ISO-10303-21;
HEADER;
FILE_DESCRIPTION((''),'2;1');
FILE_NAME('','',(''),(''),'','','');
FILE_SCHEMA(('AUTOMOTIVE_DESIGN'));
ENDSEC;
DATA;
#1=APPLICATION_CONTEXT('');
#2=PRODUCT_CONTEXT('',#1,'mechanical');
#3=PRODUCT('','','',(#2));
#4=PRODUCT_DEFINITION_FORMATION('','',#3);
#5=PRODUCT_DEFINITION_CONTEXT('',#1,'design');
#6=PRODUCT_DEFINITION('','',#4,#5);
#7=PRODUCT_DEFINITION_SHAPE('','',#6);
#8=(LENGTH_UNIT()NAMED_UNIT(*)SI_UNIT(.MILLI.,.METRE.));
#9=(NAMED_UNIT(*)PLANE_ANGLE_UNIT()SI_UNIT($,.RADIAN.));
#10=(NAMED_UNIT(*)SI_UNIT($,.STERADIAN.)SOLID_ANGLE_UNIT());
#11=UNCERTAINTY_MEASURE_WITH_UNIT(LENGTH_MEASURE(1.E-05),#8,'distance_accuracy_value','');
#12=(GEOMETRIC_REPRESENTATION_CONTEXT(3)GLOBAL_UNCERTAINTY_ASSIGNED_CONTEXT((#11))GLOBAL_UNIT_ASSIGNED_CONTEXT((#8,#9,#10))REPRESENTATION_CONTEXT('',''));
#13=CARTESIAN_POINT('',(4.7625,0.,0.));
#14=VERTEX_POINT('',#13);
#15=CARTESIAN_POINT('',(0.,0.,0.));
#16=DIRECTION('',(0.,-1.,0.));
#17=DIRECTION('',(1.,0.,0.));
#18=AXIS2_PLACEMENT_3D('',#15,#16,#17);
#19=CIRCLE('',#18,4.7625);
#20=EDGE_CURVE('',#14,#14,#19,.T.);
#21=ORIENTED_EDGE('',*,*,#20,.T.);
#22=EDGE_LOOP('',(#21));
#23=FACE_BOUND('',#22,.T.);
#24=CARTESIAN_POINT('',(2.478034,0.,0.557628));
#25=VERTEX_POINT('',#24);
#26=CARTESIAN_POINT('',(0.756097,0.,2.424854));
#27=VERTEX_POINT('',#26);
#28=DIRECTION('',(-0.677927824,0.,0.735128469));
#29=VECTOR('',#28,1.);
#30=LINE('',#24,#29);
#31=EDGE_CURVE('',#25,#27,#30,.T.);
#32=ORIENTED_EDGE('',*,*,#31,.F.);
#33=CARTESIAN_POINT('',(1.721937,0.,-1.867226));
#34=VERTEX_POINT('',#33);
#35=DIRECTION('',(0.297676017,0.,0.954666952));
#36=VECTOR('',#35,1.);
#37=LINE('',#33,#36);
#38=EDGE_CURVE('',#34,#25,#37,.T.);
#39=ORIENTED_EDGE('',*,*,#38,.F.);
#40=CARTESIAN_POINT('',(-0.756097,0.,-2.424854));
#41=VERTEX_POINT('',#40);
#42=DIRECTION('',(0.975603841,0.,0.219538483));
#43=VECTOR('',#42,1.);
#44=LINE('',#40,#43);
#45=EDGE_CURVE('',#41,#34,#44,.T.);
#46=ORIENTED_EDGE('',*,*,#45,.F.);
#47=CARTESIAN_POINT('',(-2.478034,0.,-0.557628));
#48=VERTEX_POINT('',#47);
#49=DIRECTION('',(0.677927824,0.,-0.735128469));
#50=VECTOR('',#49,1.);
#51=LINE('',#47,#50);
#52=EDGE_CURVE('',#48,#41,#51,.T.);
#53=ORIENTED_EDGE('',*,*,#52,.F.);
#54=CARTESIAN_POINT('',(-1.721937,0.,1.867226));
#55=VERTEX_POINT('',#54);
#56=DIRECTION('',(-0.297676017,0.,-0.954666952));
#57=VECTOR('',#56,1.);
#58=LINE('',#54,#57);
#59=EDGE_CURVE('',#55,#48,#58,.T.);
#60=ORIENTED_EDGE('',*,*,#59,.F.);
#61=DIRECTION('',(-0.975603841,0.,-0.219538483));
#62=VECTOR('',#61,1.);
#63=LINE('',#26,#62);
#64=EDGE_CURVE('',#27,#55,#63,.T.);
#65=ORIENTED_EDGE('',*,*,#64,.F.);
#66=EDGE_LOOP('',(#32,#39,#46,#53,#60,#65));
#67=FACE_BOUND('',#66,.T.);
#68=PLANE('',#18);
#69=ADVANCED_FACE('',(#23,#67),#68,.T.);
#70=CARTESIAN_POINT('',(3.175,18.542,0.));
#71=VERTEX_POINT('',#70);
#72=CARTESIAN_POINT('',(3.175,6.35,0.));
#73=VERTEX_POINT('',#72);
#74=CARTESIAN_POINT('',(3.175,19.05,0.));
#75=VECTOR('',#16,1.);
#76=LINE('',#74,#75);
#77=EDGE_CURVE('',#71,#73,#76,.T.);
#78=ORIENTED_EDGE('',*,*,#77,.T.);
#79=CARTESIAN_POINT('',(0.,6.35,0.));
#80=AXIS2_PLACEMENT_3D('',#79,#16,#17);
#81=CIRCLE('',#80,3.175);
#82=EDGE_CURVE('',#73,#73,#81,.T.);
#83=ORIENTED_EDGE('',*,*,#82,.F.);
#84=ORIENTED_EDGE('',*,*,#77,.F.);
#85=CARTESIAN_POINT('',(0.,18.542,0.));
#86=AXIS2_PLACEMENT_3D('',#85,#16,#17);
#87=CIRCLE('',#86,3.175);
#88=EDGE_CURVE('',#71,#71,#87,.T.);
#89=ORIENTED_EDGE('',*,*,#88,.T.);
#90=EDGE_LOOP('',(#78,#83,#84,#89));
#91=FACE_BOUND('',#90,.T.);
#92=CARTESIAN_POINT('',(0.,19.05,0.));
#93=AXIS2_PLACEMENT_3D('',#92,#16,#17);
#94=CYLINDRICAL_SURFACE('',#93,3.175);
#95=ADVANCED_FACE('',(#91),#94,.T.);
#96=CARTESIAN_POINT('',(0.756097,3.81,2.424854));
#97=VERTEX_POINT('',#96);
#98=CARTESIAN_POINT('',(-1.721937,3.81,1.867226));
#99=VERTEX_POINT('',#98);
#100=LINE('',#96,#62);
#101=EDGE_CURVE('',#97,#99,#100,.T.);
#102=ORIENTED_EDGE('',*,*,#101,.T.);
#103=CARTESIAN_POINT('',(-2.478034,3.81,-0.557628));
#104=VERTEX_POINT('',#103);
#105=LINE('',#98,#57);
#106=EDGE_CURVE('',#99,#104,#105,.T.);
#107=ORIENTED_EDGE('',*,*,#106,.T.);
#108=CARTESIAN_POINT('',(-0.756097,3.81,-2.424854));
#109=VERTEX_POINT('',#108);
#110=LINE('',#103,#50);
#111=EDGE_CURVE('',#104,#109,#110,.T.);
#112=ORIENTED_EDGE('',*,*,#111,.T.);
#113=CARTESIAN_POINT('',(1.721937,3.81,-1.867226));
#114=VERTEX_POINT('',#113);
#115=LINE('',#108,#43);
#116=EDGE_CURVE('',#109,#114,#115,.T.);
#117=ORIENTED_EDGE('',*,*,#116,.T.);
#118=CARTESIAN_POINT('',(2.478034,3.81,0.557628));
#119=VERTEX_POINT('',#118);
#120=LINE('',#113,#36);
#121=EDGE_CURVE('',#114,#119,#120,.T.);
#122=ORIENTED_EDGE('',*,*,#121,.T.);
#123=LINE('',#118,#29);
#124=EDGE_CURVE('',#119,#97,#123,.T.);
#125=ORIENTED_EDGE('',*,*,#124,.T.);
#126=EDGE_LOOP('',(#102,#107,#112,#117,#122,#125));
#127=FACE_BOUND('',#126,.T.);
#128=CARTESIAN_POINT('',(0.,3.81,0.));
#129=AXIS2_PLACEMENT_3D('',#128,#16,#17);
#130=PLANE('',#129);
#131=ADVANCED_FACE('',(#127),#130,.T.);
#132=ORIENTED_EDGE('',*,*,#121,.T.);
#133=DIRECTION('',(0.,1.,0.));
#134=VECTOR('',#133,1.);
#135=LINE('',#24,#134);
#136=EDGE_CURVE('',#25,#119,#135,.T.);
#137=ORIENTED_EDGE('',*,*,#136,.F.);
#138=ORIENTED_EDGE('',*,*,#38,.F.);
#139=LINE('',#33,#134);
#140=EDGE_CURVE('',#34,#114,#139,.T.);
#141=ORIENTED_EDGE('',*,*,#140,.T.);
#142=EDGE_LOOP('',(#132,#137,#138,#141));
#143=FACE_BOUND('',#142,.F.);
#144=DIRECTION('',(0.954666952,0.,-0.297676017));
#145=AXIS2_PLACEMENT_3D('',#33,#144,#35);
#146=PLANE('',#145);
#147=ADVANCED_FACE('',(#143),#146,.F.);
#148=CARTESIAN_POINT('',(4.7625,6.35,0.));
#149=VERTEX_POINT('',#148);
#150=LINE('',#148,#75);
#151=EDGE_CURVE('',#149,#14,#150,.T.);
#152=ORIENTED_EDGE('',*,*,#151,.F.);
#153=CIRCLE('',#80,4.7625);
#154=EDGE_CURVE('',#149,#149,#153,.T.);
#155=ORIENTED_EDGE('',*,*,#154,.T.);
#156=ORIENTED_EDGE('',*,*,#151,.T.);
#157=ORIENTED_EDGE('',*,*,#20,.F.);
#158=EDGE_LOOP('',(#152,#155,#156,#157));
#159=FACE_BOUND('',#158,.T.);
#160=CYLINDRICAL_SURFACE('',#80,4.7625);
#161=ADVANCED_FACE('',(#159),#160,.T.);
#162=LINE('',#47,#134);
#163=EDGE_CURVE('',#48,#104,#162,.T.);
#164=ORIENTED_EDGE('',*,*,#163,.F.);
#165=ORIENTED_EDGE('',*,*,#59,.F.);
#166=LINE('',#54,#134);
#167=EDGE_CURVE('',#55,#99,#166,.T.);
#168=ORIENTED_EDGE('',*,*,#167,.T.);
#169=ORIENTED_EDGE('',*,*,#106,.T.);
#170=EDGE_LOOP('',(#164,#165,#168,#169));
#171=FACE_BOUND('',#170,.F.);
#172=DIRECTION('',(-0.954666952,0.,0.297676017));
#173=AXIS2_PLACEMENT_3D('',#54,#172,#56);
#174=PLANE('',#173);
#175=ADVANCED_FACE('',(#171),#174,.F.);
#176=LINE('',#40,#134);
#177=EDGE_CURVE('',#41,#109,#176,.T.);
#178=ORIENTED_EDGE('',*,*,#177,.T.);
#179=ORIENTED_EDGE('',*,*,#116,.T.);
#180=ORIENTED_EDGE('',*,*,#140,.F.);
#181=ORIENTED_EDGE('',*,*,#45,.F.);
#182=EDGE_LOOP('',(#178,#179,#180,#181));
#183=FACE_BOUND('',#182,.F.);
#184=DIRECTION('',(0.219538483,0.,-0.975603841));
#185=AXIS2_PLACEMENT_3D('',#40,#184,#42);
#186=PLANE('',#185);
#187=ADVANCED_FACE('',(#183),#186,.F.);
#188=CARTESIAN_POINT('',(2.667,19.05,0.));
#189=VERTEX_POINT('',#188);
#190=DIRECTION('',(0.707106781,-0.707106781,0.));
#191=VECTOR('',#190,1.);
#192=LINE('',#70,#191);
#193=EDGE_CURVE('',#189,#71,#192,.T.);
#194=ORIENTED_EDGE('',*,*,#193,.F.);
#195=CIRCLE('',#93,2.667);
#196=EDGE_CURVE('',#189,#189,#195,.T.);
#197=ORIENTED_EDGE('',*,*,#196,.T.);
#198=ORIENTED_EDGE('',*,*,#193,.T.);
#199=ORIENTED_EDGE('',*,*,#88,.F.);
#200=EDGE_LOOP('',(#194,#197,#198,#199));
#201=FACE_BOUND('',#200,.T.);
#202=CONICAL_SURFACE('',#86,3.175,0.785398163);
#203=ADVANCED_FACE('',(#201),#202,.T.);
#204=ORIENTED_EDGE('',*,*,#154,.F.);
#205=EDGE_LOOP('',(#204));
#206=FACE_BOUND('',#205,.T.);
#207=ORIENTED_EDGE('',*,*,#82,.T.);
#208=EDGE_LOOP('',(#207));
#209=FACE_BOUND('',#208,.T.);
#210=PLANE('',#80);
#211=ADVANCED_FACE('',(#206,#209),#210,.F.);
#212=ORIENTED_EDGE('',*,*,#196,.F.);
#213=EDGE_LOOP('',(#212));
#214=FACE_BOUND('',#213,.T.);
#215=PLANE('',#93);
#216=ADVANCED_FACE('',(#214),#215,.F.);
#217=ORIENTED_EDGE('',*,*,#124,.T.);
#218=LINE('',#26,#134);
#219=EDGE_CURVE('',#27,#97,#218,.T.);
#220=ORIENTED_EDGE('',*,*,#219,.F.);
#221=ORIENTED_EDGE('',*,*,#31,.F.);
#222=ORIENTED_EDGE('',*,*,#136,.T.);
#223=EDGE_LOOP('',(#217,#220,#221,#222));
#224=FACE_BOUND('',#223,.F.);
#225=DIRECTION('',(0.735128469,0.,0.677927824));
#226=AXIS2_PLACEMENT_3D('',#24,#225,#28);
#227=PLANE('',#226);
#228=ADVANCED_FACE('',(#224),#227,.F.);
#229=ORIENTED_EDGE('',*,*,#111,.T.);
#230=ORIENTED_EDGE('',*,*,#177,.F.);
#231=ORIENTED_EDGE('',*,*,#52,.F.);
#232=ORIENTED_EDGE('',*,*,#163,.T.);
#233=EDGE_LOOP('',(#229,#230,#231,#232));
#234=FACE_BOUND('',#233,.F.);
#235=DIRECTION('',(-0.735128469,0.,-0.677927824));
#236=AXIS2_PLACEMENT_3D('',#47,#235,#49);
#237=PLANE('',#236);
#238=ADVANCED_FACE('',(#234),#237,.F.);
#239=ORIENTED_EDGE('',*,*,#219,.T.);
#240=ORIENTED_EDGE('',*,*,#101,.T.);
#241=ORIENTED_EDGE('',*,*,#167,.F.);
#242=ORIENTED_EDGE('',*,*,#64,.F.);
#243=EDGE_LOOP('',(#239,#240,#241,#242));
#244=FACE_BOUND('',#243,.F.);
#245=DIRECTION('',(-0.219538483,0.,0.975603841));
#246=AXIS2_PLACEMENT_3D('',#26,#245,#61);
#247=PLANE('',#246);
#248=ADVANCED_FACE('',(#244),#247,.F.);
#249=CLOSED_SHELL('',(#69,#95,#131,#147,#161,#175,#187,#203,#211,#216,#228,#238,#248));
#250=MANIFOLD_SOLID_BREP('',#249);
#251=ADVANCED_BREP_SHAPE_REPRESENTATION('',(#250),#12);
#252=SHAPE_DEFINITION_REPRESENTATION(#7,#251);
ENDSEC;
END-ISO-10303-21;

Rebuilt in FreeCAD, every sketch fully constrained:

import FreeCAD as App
import Part
import Sketcher
Q = App.Units.Quantity


def edges_at(feature, points):
    """Names of the edges that pass closest to the given points."""
    edges = feature.Shape.Edges
    near = lambda p: min(range(len(edges)), key=lambda i: edges[i].distToShape(Part.Vertex(*p))[0])
    return sorted({f"Edge{near(p) + 1}" for p in points})

doc = App.newDocument("Part")
body = doc.addObject("PartDesign::Body", "Body")

sketch1 = body.newObject("Sketcher::SketchObject", "Sketch")
sketch1.AttachmentSupport = (doc.getObject("XY_Plane"), [""])
sketch1.MapMode = "FlatFace"
sketch1.addGeometry([
    Part.LineSegment(App.Vector(0, 19.1, 0), App.Vector(0, 0, 0)),
    Part.LineSegment(App.Vector(0, 0, 0), App.Vector(4.8, 0, 0)),
    Part.LineSegment(App.Vector(4.8, 0, 0), App.Vector(4.8, 6.3, 0)),
    Part.LineSegment(App.Vector(4.8, 6.3, 0), App.Vector(3.2, 6.3, 0)),
    Part.LineSegment(App.Vector(3.2, 6.3, 0), App.Vector(3.2, 19.1, 0)),
    Part.LineSegment(App.Vector(3.2, 19.1, 0), App.Vector(0, 19.1, 0)),
], False)
sketch1.addConstraint([
    Sketcher.Constraint("Coincident", 0, 2, 1, 1),
    Sketcher.Constraint("Coincident", 1, 2, 2, 1),
    Sketcher.Constraint("Coincident", 2, 2, 3, 1),
    Sketcher.Constraint("Coincident", 3, 2, 4, 1),
    Sketcher.Constraint("Coincident", 4, 2, 5, 1),
    Sketcher.Constraint("Coincident", 5, 2, 0, 1),
    Sketcher.Constraint("Vertical", 0),
    Sketcher.Constraint("Horizontal", 1),
    Sketcher.Constraint("Vertical", 2),
    Sketcher.Constraint("Horizontal", 3),
    Sketcher.Constraint("Vertical", 4),
    Sketcher.Constraint("Horizontal", 5),
    Sketcher.Constraint("Coincident", 0, 2, -1, 1),
    Sketcher.Constraint("DistanceY", 4, 1, 4, 2, Q("0.5 in")),
    Sketcher.Constraint("DistanceY", 0, 2, 0, 1, Q("0.75 in")),
    Sketcher.Constraint("DistanceX", 1, 1, 1, 2, Q("0.1875 in")),
    Sketcher.Constraint("DistanceX", 3, 2, 3, 1, Q("0.0625 in")),
])
revolution = body.newObject("PartDesign::Revolution", "Revolution")
revolution.Profile = sketch1
revolution.ReferenceAxis = (sketch1, ["V_Axis"])
revolution.Angle = 360
doc.recompute()

chamfer = body.newObject("PartDesign::Chamfer", "Chamfer")
chamfer.Base = (revolution, edges_at(revolution, [(-3.175, 19.05, 0)]))
chamfer.Size = Q("0.02 in")

sketch2 = body.newObject("Sketcher::SketchObject", "Sketch001")
sketch2.AttachmentSupport = (doc.getObject("XZ_Plane"), [""])
sketch2.MapMode = "FlatFace"
sketch2.addGeometry([
    Part.LineSegment(App.Vector(1.7, -1.9, 0), App.Vector(2.5, 0.6, 0)),
    Part.LineSegment(App.Vector(2.5, 0.6, 0), App.Vector(0.8, 2.4, 0)),
    Part.LineSegment(App.Vector(0.8, 2.4, 0), App.Vector(-1.7, 1.9, 0)),
    Part.LineSegment(App.Vector(-1.7, 1.9, 0), App.Vector(-2.5, -0.6, 0)),
    Part.LineSegment(App.Vector(-2.5, -0.6, 0), App.Vector(-0.8, -2.4, 0)),
    Part.LineSegment(App.Vector(-0.8, -2.4, 0), App.Vector(1.7, -1.9, 0)),
], False)
sketch2.addConstraint([
    Sketcher.Constraint("Coincident", 0, 2, 1, 1),
    Sketcher.Constraint("Coincident", 1, 2, 2, 1),
    Sketcher.Constraint("Coincident", 2, 2, 3, 1),
    Sketcher.Constraint("Coincident", 3, 2, 4, 1),
    Sketcher.Constraint("Coincident", 4, 2, 5, 1),
    Sketcher.Constraint("Coincident", 5, 2, 0, 1),
    Sketcher.Constraint("Symmetric", 0, 2, 3, 2, -1, 1),
    Sketcher.Constraint("Symmetric", 1, 2, 4, 2, -1, 1),
    Sketcher.Constraint("Symmetric", 2, 2, 5, 2, -1, 1),
    Sketcher.Constraint("Equal", 0, 1),
    Sketcher.Constraint("Equal", 1, 2),
    Sketcher.Constraint("Distance", 0, Q("0.1 in")),
    Sketcher.Constraint("DistanceY", 0, 2, 2, 2, 1.309599),
    Sketcher.Constraint("DistanceX", 2, 2, 0, 2, 4.19997),
    Sketcher.Constraint("DistanceX", 3, 2, 1, 2, 3.234131),
])
pocket1 = body.newObject("PartDesign::Pocket", "Pocket")
pocket1.Profile = sketch2
pocket1.Length = Q("0.15 in")

doc.recompute()
